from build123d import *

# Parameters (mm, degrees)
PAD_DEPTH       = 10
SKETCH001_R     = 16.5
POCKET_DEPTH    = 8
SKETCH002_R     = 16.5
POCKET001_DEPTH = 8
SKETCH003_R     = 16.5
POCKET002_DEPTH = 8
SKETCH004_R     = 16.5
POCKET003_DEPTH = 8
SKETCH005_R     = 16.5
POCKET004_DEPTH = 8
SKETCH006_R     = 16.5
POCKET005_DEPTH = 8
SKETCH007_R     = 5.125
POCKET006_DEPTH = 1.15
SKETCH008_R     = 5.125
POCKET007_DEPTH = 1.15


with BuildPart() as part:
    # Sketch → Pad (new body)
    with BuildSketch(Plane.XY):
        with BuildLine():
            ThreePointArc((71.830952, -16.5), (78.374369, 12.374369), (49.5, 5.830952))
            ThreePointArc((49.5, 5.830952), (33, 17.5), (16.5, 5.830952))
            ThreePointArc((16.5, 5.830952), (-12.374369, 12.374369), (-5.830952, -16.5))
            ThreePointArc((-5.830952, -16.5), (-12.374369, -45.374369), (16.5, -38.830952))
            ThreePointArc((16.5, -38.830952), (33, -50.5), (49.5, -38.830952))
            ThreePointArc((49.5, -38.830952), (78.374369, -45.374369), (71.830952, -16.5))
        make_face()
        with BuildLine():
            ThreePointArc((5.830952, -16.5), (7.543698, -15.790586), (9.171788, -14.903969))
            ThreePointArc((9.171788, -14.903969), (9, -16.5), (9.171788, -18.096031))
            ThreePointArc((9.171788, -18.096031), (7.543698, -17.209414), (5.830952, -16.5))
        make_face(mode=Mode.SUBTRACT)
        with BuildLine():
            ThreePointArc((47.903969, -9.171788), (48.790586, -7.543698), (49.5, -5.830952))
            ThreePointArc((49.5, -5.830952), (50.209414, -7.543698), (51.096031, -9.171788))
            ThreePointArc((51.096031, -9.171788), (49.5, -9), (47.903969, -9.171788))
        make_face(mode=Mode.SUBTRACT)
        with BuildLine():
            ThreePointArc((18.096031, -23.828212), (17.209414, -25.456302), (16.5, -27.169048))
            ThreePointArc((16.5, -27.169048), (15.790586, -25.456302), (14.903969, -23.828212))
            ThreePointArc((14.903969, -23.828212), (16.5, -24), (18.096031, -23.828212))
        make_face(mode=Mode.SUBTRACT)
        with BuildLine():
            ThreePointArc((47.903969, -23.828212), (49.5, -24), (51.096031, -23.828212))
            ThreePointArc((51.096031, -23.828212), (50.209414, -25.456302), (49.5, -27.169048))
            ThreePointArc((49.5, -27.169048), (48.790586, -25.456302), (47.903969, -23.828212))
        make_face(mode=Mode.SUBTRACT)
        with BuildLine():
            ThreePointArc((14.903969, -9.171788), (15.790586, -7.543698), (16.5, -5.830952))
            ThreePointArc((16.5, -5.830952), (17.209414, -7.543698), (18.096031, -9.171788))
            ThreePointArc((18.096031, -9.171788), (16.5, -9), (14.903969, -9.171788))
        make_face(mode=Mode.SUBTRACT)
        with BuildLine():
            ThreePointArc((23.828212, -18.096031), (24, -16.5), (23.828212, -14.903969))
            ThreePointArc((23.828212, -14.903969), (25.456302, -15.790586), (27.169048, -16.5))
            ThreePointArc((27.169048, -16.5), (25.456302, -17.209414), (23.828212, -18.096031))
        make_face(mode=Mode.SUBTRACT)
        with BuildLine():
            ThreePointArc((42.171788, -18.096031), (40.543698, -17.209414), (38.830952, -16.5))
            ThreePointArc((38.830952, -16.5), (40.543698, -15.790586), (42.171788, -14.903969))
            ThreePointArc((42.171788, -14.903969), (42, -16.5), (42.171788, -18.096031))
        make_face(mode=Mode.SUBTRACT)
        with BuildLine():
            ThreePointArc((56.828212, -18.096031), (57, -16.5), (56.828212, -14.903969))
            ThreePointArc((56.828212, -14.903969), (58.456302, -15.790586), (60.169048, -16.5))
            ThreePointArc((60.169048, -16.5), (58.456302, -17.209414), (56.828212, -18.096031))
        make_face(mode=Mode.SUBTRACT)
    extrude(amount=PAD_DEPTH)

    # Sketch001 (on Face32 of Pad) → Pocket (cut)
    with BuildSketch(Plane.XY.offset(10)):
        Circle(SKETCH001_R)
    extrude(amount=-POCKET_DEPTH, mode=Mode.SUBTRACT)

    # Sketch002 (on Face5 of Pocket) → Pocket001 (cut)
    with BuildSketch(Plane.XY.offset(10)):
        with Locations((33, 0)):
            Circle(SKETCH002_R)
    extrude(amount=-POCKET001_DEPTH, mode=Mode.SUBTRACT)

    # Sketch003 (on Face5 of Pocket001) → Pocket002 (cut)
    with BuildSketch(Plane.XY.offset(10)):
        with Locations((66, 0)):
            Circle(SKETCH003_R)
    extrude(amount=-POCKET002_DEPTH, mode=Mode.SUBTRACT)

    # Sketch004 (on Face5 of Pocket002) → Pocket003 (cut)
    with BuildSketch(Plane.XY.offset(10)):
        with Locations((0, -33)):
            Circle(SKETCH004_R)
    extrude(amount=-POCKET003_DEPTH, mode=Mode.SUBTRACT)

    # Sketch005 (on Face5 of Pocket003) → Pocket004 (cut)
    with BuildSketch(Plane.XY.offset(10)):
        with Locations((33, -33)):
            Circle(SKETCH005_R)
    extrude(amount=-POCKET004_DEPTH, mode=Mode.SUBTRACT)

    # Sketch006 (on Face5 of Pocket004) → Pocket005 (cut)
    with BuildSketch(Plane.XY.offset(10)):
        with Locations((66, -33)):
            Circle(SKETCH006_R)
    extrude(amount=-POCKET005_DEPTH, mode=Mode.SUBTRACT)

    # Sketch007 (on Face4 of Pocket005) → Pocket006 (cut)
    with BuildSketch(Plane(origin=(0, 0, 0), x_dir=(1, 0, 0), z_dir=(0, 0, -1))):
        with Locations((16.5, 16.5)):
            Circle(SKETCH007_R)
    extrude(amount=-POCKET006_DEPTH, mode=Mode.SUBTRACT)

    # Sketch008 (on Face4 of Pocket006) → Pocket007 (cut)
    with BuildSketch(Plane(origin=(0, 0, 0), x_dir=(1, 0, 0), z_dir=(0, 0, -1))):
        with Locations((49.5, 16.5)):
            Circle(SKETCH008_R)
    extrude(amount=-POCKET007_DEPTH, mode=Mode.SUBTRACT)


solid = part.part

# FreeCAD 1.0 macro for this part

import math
import FreeCAD as App
import Part
import Sketcher

V = App.Vector

doc = App.newDocument("Part")
body = doc.addObject("PartDesign::Body", "Body")

# Sketch on XY plane
sketch1 = body.newObject("Sketcher::SketchObject", "Sketch")
sketch1.AttachmentSupport = (doc.getObject("XY_Plane"), [""])
sketch1.MapMode = "FlatFace"
sketch1.addGeometry([
    Part.ArcOfCircle(Part.Circle(V(66, 0, 0), V(0, 0, 1), 17.5), math.radians(-70.53705), math.radians(160.53705)),  # 0
    Part.ArcOfCircle(Part.Circle(V(33, 0, 0), V(0, 0, 1), 17.5), math.radians(19.462951), math.radians(160.537049)),  # 1
    Part.ArcOfCircle(Part.Circle(V(0, 0, 0), V(0, 0, 1), 17.5), math.radians(19.46295), math.radians(250.53705)),  # 2
    Part.ArcOfCircle(Part.Circle(V(0, -33, 0), V(0, 0, 1), 17.5), math.radians(109.46295), math.radians(340.53705)),  # 3
    Part.ArcOfCircle(Part.Circle(V(33, -33, 0), V(0, 0, 1), 17.5), math.radians(-160.537049), math.radians(-19.462951)),  # 4
    Part.ArcOfCircle(Part.Circle(V(66, -33, 0), V(0, 0, 1), 17.5), math.radians(-160.53705), math.radians(70.53705)),  # 5
    Part.ArcOfCircle(Part.Circle(V(16.5, -16.499982, 0), V(0, 0, 1), 7.500018), math.radians(-102.286703), math.radians(-77.713297)),  # 6
    Part.ArcOfCircle(Part.Circle(V(33.000038, -33.00002, 0), V(0, 0, 1), 17.500042), math.radians(148.392186), math.radians(160.537028)),  # 7
    Part.ArcOfCircle(Part.Circle(V(-0.000038, -33.00002, 0), V(0, 0, 1), 17.500042), math.radians(19.462972), math.radians(31.607814)),  # 8
    Part.ArcOfCircle(Part.Circle(V(-0.00002, -33.000038, 0), V(0, 0, 1), 17.500042), math.radians(58.392186), math.radians(70.537028)),  # 9
    Part.ArcOfCircle(Part.Circle(V(-0.00002, 0.000038, 0), V(0, 0, 1), 17.500042), math.radians(-70.537028), math.radians(-58.392186)),  # 10
    Part.ArcOfCircle(Part.Circle(V(16.500018, -16.5, 0), V(0, 0, 1), 7.500018), math.radians(167.713297), math.radians(192.286703)),  # 11
    Part.ArcOfCircle(Part.Circle(V(33.00002, -33.000038, 0), V(0, 0, 1), 17.500042), math.radians(109.462972), math.radians(121.607814)),  # 12
    Part.ArcOfCircle(Part.Circle(V(16.499982, -16.5, 0), V(0, 0, 1), 7.500018), math.radians(-12.286703), math.radians(12.286703)),  # 13
    Part.ArcOfCircle(Part.Circle(V(33.00002, 0.000038, 0), V(0, 0, 1), 17.500042), math.radians(-121.607814), math.radians(-109.462972)),  # 14
    Part.ArcOfCircle(Part.Circle(V(32.999962, -33.00002, 0), V(0, 0, 1), 17.500042), math.radians(19.462972), math.radians(31.607814)),  # 15
    Part.ArcOfCircle(Part.Circle(V(49.5, -16.499982, 0), V(0, 0, 1), 7.500018), math.radians(-102.286703), math.radians(-77.713297)),  # 16
    Part.ArcOfCircle(Part.Circle(V(66.000038, -33.00002, 0), V(0, 0, 1), 17.500042), math.radians(148.392186), math.radians(160.537028)),  # 17
    Part.ArcOfCircle(Part.Circle(V(49.500018, -16.5, 0), V(0, 0, 1), 7.500018), math.radians(167.713297), math.radians(192.286703)),  # 18
    Part.ArcOfCircle(Part.Circle(V(32.99998, -33.000038, 0), V(0, 0, 1), 17.500042), math.radians(58.392186), math.radians(70.537028)),  # 19
    Part.ArcOfCircle(Part.Circle(V(32.99998, 0.000038, 0), V(0, 0, 1), 17.500042), math.radians(-70.537028), math.radians(-58.392186)),  # 20
    Part.ArcOfCircle(Part.Circle(V(66.00002, -33.000038, 0), V(0, 0, 1), 17.500042), math.radians(109.462972), math.radians(121.607814)),  # 21
    Part.ArcOfCircle(Part.Circle(V(49.499982, -16.5, 0), V(0, 0, 1), 7.500018), math.radians(-12.286703), math.radians(12.286703)),  # 22
    Part.ArcOfCircle(Part.Circle(V(66.00002, 0.000038, 0), V(0, 0, 1), 17.500042), math.radians(-121.607814), math.radians(-109.462972)),  # 23
    Part.ArcOfCircle(Part.Circle(V(16.5, -16.500018, 0), V(0, 0, 1), 7.500018), math.radians(77.713297), math.radians(102.286703)),  # 24
    Part.ArcOfCircle(Part.Circle(V(-0.000038, 0.00002, 0), V(0, 0, 1), 17.500042), math.radians(-31.607814), math.radians(-19.462972)),  # 25
    Part.ArcOfCircle(Part.Circle(V(33.000038, 0.00002, 0), V(0, 0, 1), 17.500042), math.radians(-160.537028), math.radians(-148.392186)),  # 26
    Part.ArcOfCircle(Part.Circle(V(49.5, -16.500018, 0), V(0, 0, 1), 7.500018), math.radians(77.713297), math.radians(102.286703)),  # 27
    Part.ArcOfCircle(Part.Circle(V(32.999962, 0.00002, 0), V(0, 0, 1), 17.500042), math.radians(-31.607814), math.radians(-19.462972)),  # 28
    Part.ArcOfCircle(Part.Circle(V(66.000038, 0.00002, 0), V(0, 0, 1), 17.500042), math.radians(-160.537028), math.radians(-148.392186)),  # 29
], False)
sketch1.addConstraint([
    Sketcher.Constraint("Coincident", 0, 2, 1, 1),
    Sketcher.Constraint("Coincident", 1, 2, 2, 1),
    Sketcher.Constraint("Coincident", 2, 2, 3, 1),
    Sketcher.Constraint("Coincident", 3, 2, 4, 1),
    Sketcher.Constraint("Coincident", 4, 2, 5, 1),
    Sketcher.Constraint("Coincident", 5, 2, 0, 1),
    Sketcher.Constraint("Coincident", 6, 2, 7, 1),
    Sketcher.Constraint("Coincident", 7, 2, 8, 1),
    Sketcher.Constraint("Coincident", 8, 2, 6, 1),
    Sketcher.Constraint("Coincident", 9, 2, 10, 1),
    Sketcher.Constraint("Coincident", 10, 2, 11, 1),
    Sketcher.Constraint("Coincident", 11, 2, 9, 1),
    Sketcher.Constraint("Coincident", 12, 2, 13, 1),
    Sketcher.Constraint("Coincident", 13, 2, 14, 1),
    Sketcher.Constraint("Coincident", 14, 2, 12, 1),
    Sketcher.Constraint("Coincident", 15, 2, 16, 1),
    Sketcher.Constraint("Coincident", 16, 2, 17, 1),
    Sketcher.Constraint("Coincident", 17, 2, 15, 1),
    Sketcher.Constraint("Coincident", 18, 2, 19, 1),
    Sketcher.Constraint("Coincident", 19, 2, 20, 1),
    Sketcher.Constraint("Coincident", 20, 2, 18, 1),
    Sketcher.Constraint("Coincident", 21, 2, 22, 1),
    Sketcher.Constraint("Coincident", 22, 2, 23, 1),
    Sketcher.Constraint("Coincident", 23, 2, 21, 1),
    Sketcher.Constraint("Coincident", 24, 2, 25, 1),
    Sketcher.Constraint("Coincident", 25, 2, 26, 1),
    Sketcher.Constraint("Coincident", 26, 2, 24, 1),
    Sketcher.Constraint("Coincident", 27, 2, 28, 1),
    Sketcher.Constraint("Coincident", 28, 2, 29, 1),
    Sketcher.Constraint("Coincident", 29, 2, 27, 1),
    Sketcher.Constraint("Coincident", 2, 3, -1, 1),
    Sketcher.Constraint("Equal", 0, 1),
    Sketcher.Constraint("Equal", 1, 2),
    Sketcher.Constraint("Equal", 2, 3),
    Sketcher.Constraint("Equal", 3, 4),
    Sketcher.Constraint("Equal", 4, 5),
    Sketcher.Constraint("Equal", 7, 8),
    Sketcher.Constraint("Equal", 8, 9),
    Sketcher.Constraint("Equal", 9, 10),
    Sketcher.Constraint("Equal", 6, 11),
    Sketcher.Constraint("Equal", 10, 12),
    Sketcher.Constraint("Equal", 11, 13),
    Sketcher.Constraint("Equal", 12, 14),
    Sketcher.Constraint("Equal", 14, 15),
    Sketcher.Constraint("Equal", 13, 16),
    Sketcher.Constraint("Equal", 15, 17),
    Sketcher.Constraint("Equal", 16, 18),
    Sketcher.Constraint("Equal", 17, 19),
    Sketcher.Constraint("Equal", 19, 20),
    Sketcher.Constraint("Equal", 20, 21),
    Sketcher.Constraint("Equal", 18, 22),
    Sketcher.Constraint("Equal", 21, 23),
    Sketcher.Constraint("Equal", 22, 24),
    Sketcher.Constraint("Equal", 23, 25),
    Sketcher.Constraint("Equal", 25, 26),
    Sketcher.Constraint("Equal", 24, 27),
    Sketcher.Constraint("Equal", 26, 28),
    Sketcher.Constraint("Equal", 28, 29),
    Sketcher.Constraint("Symmetric", 2, 2, 9, 2, -2),
    Sketcher.Constraint("Symmetric", 1, 2, 25, 2, -1),
    Sketcher.Constraint("Symmetric", 0, 2, 28, 2, -1),
    Sketcher.Constraint("PointOnObject", 0, 3, -1),
    Sketcher.Constraint("PointOnObject", 1, 3, -1),
    Sketcher.Constraint("PointOnObject", 3, 3, -2),
    Sketcher.Constraint("Horizontal", 3, 3, 4, 3),
    Sketcher.Constraint("Horizontal", 4, 3, 5, 3),
    Sketcher.Constraint("Horizontal", 7, 3, 8, 3),
    Sketcher.Constraint("Horizontal", 9, 3, 12, 3),
    Sketcher.Constraint("Horizontal", 11, 3, 13, 3),
    Sketcher.Constraint("Horizontal", 10, 3, 14, 3),
    Sketcher.Constraint("Horizontal", 8, 3, 15, 3),
    Sketcher.Constraint("Horizontal", 6, 3, 16, 3),
    Sketcher.Constraint("Horizontal", 15, 3, 17, 3),
    Sketcher.Constraint("Horizontal", 13, 3, 18, 3),
    Sketcher.Constraint("Horizontal", 12, 3, 19, 3),
    Sketcher.Constraint("Horizontal", 14, 3, 20, 3),
    Sketcher.Constraint("Horizontal", 19, 3, 21, 3),
    Sketcher.Constraint("Horizontal", 18, 3, 22, 3),
    Sketcher.Constraint("Horizontal", 20, 3, 23, 3),
    Sketcher.Constraint("Horizontal", 25, 3, 26, 3),
    Sketcher.Constraint("Horizontal", 24, 3, 27, 3),
    Sketcher.Constraint("Horizontal", 26, 3, 28, 3),
    Sketcher.Constraint("Horizontal", 28, 3, 29, 3),
    Sketcher.Constraint("Horizontal", 0, 2, 1, 2),
    Sketcher.Constraint("Horizontal", 22, 3, 2, 2),
    Sketcher.Constraint("Horizontal", 3, 2, 4, 2),
    Sketcher.Constraint("Horizontal", 2, 2, 5, 2),
    Sketcher.Constraint("Horizontal", 6, 2, 8, 2),
    Sketcher.Constraint("Horizontal", 11, 2, 12, 2),
    Sketcher.Constraint("Horizontal", 10, 2, 13, 2),
    Sketcher.Constraint("Horizontal", 8, 2, 15, 2),
    Sketcher.Constraint("Horizontal", 15, 2, 16, 2),
    Sketcher.Constraint("Horizontal", 12, 2, 18, 2),
    Sketcher.Constraint("Horizontal", 14, 2, 19, 2),
    Sketcher.Constraint("Horizontal", 18, 2, 21, 2),
    Sketcher.Constraint("Horizontal", 20, 2, 22, 2),
    Sketcher.Constraint("Horizontal", 24, 2, 26, 2),
    Sketcher.Constraint("Horizontal", 26, 2, 27, 2),
    Sketcher.Constraint("Vertical", 9, 3, 10, 3),
    Sketcher.Constraint("Vertical", 6, 3, 24, 3),
    Sketcher.Constraint("Vertical", 8, 3, 25, 3),
    Sketcher.Constraint("Vertical", 16, 3, 27, 3),
    Sketcher.Constraint("Vertical", 8, 2, 24, 2),
    Sketcher.Constraint("Radius", 0, 17.5),
    Sketcher.Constraint("DistanceX", -1, 1, 0, 3, 66.0),
    Sketcher.Constraint("DistanceY", 3, 3, -1, 1, 33.0),
    Sketcher.Constraint("DistanceX", 14, 3, 23, 3, 33.0),
    Sketcher.Constraint("Radius", 6, 7.500018),
    Sketcher.Constraint("Radius", 7, 17.500042),
    Sketcher.Constraint("DistanceY", 7, 3, -1, 1, 33.00002),
    Sketcher.Constraint("DistanceX", -1, 1, 12, 3, 33.00002),
    Sketcher.Constraint("DistanceX", -1, 1, 19, 3, 32.99998),
    Sketcher.Constraint("DistanceX", -1, 1, 6, 2, 18.096031),
    Sketcher.Constraint("DistanceY", 8, 2, -1, 1, 23.828212),
    Sketcher.Constraint("DistanceX", -1, 1, 10, 2, 9.171788),
    Sketcher.Constraint("DistanceY", 10, 2, -1, 1, 14.903969),
])
pad1 = body.newObject("PartDesign::Pad", "Pad")
pad1.Profile = sketch1
pad1.Length = 10

# Sketch on XY plane
sketch2 = body.newObject("Sketcher::SketchObject", "Sketch001")
sketch2.AttachmentSupport = (doc.getObject("XY_Plane"), [""])
sketch2.MapMode = "FlatFace"
sketch2.AttachmentOffset = App.Placement(V(0, 0, 10), App.Rotation())
sketch2.addGeometry(Part.Circle(V(0, 0, 0), V(0, 0, 1), 16.5), False)
sketch2.addConstraint([
    Sketcher.Constraint("Coincident", 0, 3, -1, 1),
    Sketcher.Constraint("Diameter", 0, 33.0),
])
pocket1 = body.newObject("PartDesign::Pocket", "Pocket")
pocket1.Profile = sketch2
pocket1.Length = 8

# Sketch on XY plane
sketch3 = body.newObject("Sketcher::SketchObject", "Sketch002")
sketch3.AttachmentSupport = (doc.getObject("XY_Plane"), [""])
sketch3.MapMode = "FlatFace"
sketch3.AttachmentOffset = App.Placement(V(0, 0, 10), App.Rotation())
sketch3.addGeometry(Part.Circle(V(33, 0, 0), V(0, 0, 1), 16.5), False)
sketch3.addConstraint([
    Sketcher.Constraint("PointOnObject", 0, 3, -1),
    Sketcher.Constraint("Diameter", 0, 33.0),
    Sketcher.Constraint("DistanceX", -1, 1, 0, 3, 33.0),
])
pocket2 = body.newObject("PartDesign::Pocket", "Pocket001")
pocket2.Profile = sketch3
pocket2.Length = 8

# Sketch on XY plane
sketch4 = body.newObject("Sketcher::SketchObject", "Sketch003")
sketch4.AttachmentSupport = (doc.getObject("XY_Plane"), [""])
sketch4.MapMode = "FlatFace"
sketch4.AttachmentOffset = App.Placement(V(0, 0, 10), App.Rotation())
sketch4.addGeometry(Part.Circle(V(66, 0, 0), V(0, 0, 1), 16.5), False)
sketch4.addConstraint([
    Sketcher.Constraint("PointOnObject", 0, 3, -1),
    Sketcher.Constraint("Diameter", 0, 33.0),
    Sketcher.Constraint("DistanceX", -1, 1, 0, 3, 66.0),
])
pocket3 = body.newObject("PartDesign::Pocket", "Pocket002")
pocket3.Profile = sketch4
pocket3.Length = 8

# Sketch on XY plane
sketch5 = body.newObject("Sketcher::SketchObject", "Sketch004")
sketch5.AttachmentSupport = (doc.getObject("XY_Plane"), [""])
sketch5.MapMode = "FlatFace"
sketch5.AttachmentOffset = App.Placement(V(0, 0, 10), App.Rotation())
sketch5.addGeometry(Part.Circle(V(0, -33, 0), V(0, 0, 1), 16.5), False)
sketch5.addConstraint([
    Sketcher.Constraint("PointOnObject", 0, 3, -2),
    Sketcher.Constraint("Diameter", 0, 33.0),
    Sketcher.Constraint("DistanceY", 0, 3, -1, 1, 33.0),
])
pocket4 = body.newObject("PartDesign::Pocket", "Pocket003")
pocket4.Profile = sketch5
pocket4.Length = 8

# Sketch on XY plane
sketch6 = body.newObject("Sketcher::SketchObject", "Sketch005")
sketch6.AttachmentSupport = (doc.getObject("XY_Plane"), [""])
sketch6.MapMode = "FlatFace"
sketch6.AttachmentOffset = App.Placement(V(0, 0, 10), App.Rotation())
sketch6.addGeometry(Part.Circle(V(33, -33, 0), V(0, 0, 1), 16.5), False)
sketch6.addConstraint([
    Sketcher.Constraint("Diameter", 0, 33.0),
    Sketcher.Constraint("DistanceX", -1, 1, 0, 3, 33.0),
    Sketcher.Constraint("DistanceY", 0, 3, -1, 1, 33.0),
])
pocket5 = body.newObject("PartDesign::Pocket", "Pocket004")
pocket5.Profile = sketch6
pocket5.Length = 8

# Sketch on XY plane
sketch7 = body.newObject("Sketcher::SketchObject", "Sketch006")
sketch7.AttachmentSupport = (doc.getObject("XY_Plane"), [""])
sketch7.MapMode = "FlatFace"
sketch7.AttachmentOffset = App.Placement(V(0, 0, 10), App.Rotation())
sketch7.addGeometry(Part.Circle(V(66, -33, 0), V(0, 0, 1), 16.5), False)
sketch7.addConstraint([
    Sketcher.Constraint("Diameter", 0, 33.0),
    Sketcher.Constraint("DistanceX", -1, 1, 0, 3, 66.0),
    Sketcher.Constraint("DistanceY", 0, 3, -1, 1, 33.0),
])
pocket6 = body.newObject("PartDesign::Pocket", "Pocket005")
pocket6.Profile = sketch7
pocket6.Length = 8

# Sketch on XY plane
sketch8 = body.newObject("Sketcher::SketchObject", "Sketch007")
sketch8.AttachmentSupport = (doc.getObject("XY_Plane"), [""])
sketch8.MapMode = "FlatFace"
sketch8.addGeometry(Part.Circle(V(16.5, -16.5, 0), V(0, 0, 1), 5.125), False)
sketch8.addConstraint([
    Sketcher.Constraint("Diameter", 0, 10.25),
    Sketcher.Constraint("DistanceX", -1, 1, 0, 3, 16.5),
    Sketcher.Constraint("DistanceY", 0, 3, -1, 1, 16.5),
])
pocket7 = body.newObject("PartDesign::Pocket", "Pocket006")
pocket7.Profile = sketch8
pocket7.Length = 1.15
pocket7.Reversed = True

# Sketch on XY plane
sketch9 = body.newObject("Sketcher::SketchObject", "Sketch008")
sketch9.AttachmentSupport = (doc.getObject("XY_Plane"), [""])
sketch9.MapMode = "FlatFace"
sketch9.addGeometry(Part.Circle(V(49.5, -16.5, 0), V(0, 0, 1), 5.125), False)
sketch9.addConstraint([
    Sketcher.Constraint("Diameter", 0, 10.25),
    Sketcher.Constraint("DistanceX", -1, 1, 0, 3, 49.5),
    Sketcher.Constraint("DistanceY", 0, 3, -1, 1, 16.5),
])
pocket8 = body.newObject("PartDesign::Pocket", "Pocket007")
pocket8.Profile = sketch9
pocket8.Length = 1.15
pocket8.Reversed = True

doc.recompute()
